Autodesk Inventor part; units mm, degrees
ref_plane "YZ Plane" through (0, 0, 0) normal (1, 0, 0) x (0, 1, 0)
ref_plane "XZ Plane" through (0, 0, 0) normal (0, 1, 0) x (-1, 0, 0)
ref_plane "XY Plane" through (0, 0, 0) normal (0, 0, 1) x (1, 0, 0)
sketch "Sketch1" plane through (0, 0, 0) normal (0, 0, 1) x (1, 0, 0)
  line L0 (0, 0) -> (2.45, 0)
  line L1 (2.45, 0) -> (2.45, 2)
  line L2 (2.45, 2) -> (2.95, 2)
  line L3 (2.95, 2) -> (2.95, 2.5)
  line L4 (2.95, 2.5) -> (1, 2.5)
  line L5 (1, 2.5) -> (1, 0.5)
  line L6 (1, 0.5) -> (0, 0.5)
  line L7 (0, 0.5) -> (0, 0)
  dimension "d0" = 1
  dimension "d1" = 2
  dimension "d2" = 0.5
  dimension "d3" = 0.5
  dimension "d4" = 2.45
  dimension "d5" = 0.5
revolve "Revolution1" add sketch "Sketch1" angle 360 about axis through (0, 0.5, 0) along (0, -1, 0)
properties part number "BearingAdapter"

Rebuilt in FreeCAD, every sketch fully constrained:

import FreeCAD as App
import Part
import Sketcher

V = App.Vector


def add_polygon(sketch, points):
    """Adds a closed chain of lines whose ends are joined by coincident constraints."""
    first, n = sketch.GeometryCount, len(points)
    for a, b in zip(points, points[1:] + points[:1]):
        sketch.addGeometry(Part.LineSegment(App.Vector(*a, 0), App.Vector(*b, 0)), False)
    for i in range(n):
        sketch.addConstraint(Sketcher.Constraint("Coincident", first + i, 2, first + (i + 1) % n, 1))

doc = App.newDocument("Part")
params = doc.addObject("Spreadsheet::Sheet", "Params")
for row, (alias, value) in enumerate([
    ("sketch1_width", "1 mm"),
    ("sketch1_height", "2 mm"),
    ("sketch1_width2", "0.5 mm"),
    ("sketch1_width3", "2.45 mm"),
    ("revolution_angle", "360 deg"),
], start=1):
    params.set(f"A{row}", alias)
    params.set(f"B{row}", "=" + value)
    params.setAlias(f"B{row}", alias)

body = doc.addObject("PartDesign::Body", "Body")

sketch1 = doc.addObject("Sketcher::SketchObject", "Sketch")
body.addObject(sketch1)
sketch1.AttachmentSupport = (doc.XY_Plane, [""])
sketch1.MapMode = "FlatFace"
add_polygon(sketch1, [(0, 0.5), (0, 0), (2.45, 0), (2.45, 2), (2.95, 2), (2.95, 2.5), (1, 2.5), (1, 0.5)])
sketch1.addConstraint([
    Sketcher.Constraint("Vertical", 0),
    Sketcher.Constraint("Horizontal", 1),
    Sketcher.Constraint("Vertical", 2),
    Sketcher.Constraint("Horizontal", 3),
    Sketcher.Constraint("Vertical", 4),
    Sketcher.Constraint("Horizontal", 5),
    Sketcher.Constraint("Vertical", 6),
    Sketcher.Constraint("Horizontal", 7),
    Sketcher.Constraint("Coincident", 0, 2, -1, 1),
    Sketcher.Constraint("Equal", 3, 0),
    Sketcher.Constraint("Equal", 0, 4),
    Sketcher.Constraint("DistanceX", 7, 2, 7, 1, 1.0),
    Sketcher.Constraint("DistanceY", 2, 1, 2, 2, 2.0),
    Sketcher.Constraint("DistanceX", 3, 1, 3, 2, 0.5),
    Sketcher.Constraint("DistanceX", 1, 1, 1, 2, 2.45),
])
sketch1.setExpression("Constraints[19]", "Params.sketch1_width")
sketch1.setExpression("Constraints[20]", "Params.sketch1_height")
sketch1.setExpression("Constraints[21]", "Params.sketch1_width2")
sketch1.setExpression("Constraints[22]", "Params.sketch1_width3")
revolution = doc.addObject("PartDesign::Revolution", "Revolution")
body.addObject(revolution)
revolution.Profile = sketch1
revolution.ReferenceAxis = (sketch1, ["V_Axis"])
revolution.setExpression("Angle", "Params.revolution_angle")

doc.recompute()
